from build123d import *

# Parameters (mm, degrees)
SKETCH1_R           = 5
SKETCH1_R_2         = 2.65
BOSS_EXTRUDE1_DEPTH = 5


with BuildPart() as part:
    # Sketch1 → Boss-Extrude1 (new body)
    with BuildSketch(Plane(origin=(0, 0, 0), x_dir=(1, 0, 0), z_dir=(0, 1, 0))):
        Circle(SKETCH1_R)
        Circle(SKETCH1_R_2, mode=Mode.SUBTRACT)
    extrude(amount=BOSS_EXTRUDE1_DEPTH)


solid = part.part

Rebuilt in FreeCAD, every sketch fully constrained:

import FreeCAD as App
import Part
import Sketcher

V = App.Vector
Q = App.Units.Quantity

doc = App.newDocument("Part")
body = doc.addObject("PartDesign::Body", "Body")

# Sketch on XZ plane
sketch1 = body.newObject("Sketcher::SketchObject", "Sketch")
sketch1.AttachmentSupport = (doc.getObject("XZ_Plane"), [""])
sketch1.MapMode = "FlatFace"
sketch1.addGeometry([
    Part.Circle(V(0, 0, 0), V(0, 0, 1), 5),
    Part.Circle(V(0, 0, 0), V(0, 0, 1), 2.6),
], False)
sketch1.addConstraint([
    Sketcher.Constraint("Coincident", 0, 3, -1, 1),
    Sketcher.Constraint("Coincident", 1, 3, -1, 1),
    Sketcher.Constraint("Diameter", 0, Q("10 mm")),
    Sketcher.Constraint("Diameter", 1, Q("5.3 mm")),
])
pad1 = body.newObject("PartDesign::Pad", "Pad")
pad1.Profile = sketch1
pad1.Length = 5
pad1.Reversed = True

doc.recompute()
